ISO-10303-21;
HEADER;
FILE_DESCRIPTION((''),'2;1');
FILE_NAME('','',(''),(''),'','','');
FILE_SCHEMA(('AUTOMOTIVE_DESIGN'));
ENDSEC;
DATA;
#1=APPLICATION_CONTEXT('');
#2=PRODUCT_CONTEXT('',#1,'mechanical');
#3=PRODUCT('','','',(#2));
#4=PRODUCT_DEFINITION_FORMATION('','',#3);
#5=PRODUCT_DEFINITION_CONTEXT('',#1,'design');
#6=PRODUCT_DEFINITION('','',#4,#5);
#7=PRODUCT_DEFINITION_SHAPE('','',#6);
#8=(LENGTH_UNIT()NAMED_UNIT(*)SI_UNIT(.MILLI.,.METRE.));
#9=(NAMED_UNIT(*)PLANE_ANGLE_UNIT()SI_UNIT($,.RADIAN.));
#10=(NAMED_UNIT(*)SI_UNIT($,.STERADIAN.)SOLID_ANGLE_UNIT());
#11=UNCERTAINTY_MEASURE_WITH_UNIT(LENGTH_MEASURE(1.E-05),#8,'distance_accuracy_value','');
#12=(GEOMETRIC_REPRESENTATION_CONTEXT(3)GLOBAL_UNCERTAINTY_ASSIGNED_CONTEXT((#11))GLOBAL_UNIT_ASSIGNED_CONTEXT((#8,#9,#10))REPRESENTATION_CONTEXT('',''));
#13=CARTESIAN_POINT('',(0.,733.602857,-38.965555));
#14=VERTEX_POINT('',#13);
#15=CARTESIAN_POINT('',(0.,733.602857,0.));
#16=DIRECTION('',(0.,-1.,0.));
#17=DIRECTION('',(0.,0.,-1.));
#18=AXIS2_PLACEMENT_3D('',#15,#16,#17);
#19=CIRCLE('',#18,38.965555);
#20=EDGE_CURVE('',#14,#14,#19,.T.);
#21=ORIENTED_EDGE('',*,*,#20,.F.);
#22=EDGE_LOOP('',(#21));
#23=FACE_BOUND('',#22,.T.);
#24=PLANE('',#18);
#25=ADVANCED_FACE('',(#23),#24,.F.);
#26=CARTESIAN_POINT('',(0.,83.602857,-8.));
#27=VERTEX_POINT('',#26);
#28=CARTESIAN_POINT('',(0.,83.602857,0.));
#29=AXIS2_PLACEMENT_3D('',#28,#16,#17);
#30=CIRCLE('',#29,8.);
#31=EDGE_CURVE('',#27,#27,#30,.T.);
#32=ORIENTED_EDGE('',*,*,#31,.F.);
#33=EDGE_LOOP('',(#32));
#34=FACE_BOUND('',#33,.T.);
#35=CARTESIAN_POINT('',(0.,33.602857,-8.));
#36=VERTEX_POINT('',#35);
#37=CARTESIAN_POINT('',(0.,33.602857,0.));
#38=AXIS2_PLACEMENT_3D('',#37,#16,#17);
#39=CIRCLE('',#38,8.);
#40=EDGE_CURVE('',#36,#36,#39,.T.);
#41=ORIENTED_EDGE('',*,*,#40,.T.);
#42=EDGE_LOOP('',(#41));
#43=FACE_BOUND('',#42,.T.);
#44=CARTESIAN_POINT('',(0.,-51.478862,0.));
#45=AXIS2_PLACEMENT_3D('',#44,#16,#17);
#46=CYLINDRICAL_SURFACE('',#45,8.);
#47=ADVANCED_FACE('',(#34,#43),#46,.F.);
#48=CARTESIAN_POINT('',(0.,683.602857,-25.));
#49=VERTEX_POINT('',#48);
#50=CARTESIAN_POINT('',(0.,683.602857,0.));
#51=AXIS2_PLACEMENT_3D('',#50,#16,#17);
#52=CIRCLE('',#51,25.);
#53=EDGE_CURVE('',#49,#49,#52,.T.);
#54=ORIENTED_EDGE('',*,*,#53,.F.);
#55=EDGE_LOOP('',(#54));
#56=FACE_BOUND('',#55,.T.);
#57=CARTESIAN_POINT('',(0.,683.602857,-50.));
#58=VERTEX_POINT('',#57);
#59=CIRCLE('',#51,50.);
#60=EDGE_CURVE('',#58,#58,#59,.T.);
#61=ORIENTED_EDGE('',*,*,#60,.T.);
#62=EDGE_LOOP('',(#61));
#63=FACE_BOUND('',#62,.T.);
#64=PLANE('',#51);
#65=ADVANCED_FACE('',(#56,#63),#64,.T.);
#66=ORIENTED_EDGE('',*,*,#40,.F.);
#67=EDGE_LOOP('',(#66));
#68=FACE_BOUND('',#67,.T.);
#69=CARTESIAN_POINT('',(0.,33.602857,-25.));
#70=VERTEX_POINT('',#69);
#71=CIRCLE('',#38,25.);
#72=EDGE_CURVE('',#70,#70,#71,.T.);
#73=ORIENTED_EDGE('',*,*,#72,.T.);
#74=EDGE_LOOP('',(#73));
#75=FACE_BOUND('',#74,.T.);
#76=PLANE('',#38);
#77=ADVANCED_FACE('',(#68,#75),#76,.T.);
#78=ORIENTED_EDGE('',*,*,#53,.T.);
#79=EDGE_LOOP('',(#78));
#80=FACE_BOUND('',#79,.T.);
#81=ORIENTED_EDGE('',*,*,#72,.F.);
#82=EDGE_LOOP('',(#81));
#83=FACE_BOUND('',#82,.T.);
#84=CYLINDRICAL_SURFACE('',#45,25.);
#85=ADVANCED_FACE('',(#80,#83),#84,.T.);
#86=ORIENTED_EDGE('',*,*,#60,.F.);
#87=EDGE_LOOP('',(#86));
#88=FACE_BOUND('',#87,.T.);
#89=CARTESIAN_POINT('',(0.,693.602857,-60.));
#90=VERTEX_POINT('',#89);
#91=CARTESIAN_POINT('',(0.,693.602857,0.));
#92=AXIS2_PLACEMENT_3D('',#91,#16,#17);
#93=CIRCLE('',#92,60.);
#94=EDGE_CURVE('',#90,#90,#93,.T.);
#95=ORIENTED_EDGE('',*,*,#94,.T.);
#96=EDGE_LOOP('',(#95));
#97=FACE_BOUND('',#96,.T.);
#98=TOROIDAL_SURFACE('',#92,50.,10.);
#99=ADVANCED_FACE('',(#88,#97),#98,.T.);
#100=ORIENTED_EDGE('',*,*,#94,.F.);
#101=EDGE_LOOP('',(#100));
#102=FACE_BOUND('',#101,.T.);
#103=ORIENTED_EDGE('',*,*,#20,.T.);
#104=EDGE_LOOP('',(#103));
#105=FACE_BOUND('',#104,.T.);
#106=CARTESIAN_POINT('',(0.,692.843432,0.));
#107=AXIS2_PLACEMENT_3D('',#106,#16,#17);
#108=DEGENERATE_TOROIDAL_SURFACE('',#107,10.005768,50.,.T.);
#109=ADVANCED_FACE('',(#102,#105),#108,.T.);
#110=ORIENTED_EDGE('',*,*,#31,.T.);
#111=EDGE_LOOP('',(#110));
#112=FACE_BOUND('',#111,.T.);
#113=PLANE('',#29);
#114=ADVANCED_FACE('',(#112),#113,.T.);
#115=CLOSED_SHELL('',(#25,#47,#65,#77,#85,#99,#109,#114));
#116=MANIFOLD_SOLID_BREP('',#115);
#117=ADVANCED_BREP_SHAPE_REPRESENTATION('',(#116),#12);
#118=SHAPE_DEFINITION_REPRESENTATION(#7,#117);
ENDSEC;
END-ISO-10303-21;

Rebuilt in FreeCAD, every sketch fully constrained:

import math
import FreeCAD as App
import Part
import Sketcher
from FreeCAD import Vector

doc = App.newDocument("Part")
body = doc.addObject("PartDesign::Body", "Body")

sketch1 = doc.addObject("Sketcher::SketchObject", "Sketch")
body.addObject(sketch1)
sketch1.AttachmentSupport = (doc.XY_Plane, [""])
sketch1.MapMode = "FlatFace"
sketch1.addGeometry(Part.LineSegment(Vector(8, 84, 0), Vector(8, 34, 0)), False)
sketch1.addGeometry(Part.LineSegment(Vector(8, 34, 0), Vector(25, 34, 0)), False)
sketch1.addGeometry(Part.LineSegment(Vector(25, 34, 0), Vector(25, 684, 0)), False)
sketch1.addGeometry(Part.LineSegment(Vector(25, 684, 0), Vector(50, 684, 0)), False)
sketch1.addGeometry(Part.ArcOfCircle(Part.Circle(Vector(50, 694, 0), Vector(0, 0, 1), 10), math.radians(-90), math.radians(0)), False)
sketch1.addGeometry(Part.ArcOfCircle(Part.Circle(Vector(10, 693, 0), Vector(0, 0, 1), 50), math.radians(1), math.radians(55)), False)
sketch1.addGeometry(Part.LineSegment(Vector(39, 734, 0), Vector(0, 734, 0)), False)
sketch1.addGeometry(Part.LineSegment(Vector(0, 734, 0), Vector(0, 84, 0)), False)
sketch1.addGeometry(Part.LineSegment(Vector(0, 84, 0), Vector(8, 84, 0)), False)
sketch1.addConstraint(Sketcher.Constraint("Coincident", 0, 2, 1, 1))
sketch1.addConstraint(Sketcher.Constraint("Coincident", 1, 2, 2, 1))
sketch1.addConstraint(Sketcher.Constraint("Coincident", 2, 2, 3, 1))
sketch1.addConstraint(Sketcher.Constraint("Tangent", 3, 2, 4, 1))
sketch1.addConstraint(Sketcher.Constraint("Coincident", 4, 2, 5, 1))
sketch1.addConstraint(Sketcher.Constraint("Coincident", 5, 2, 6, 1))
sketch1.addConstraint(Sketcher.Constraint("Coincident", 6, 2, 7, 1))
sketch1.addConstraint(Sketcher.Constraint("Coincident", 7, 2, 8, 1))
sketch1.addConstraint(Sketcher.Constraint("Coincident", 8, 2, 0, 1))
sketch1.addConstraint(Sketcher.Constraint("Vertical", 0))
sketch1.addConstraint(Sketcher.Constraint("Horizontal", 1))
sketch1.addConstraint(Sketcher.Constraint("Vertical", 2))
sketch1.addConstraint(Sketcher.Constraint("Horizontal", 3))
sketch1.addConstraint(Sketcher.Constraint("Horizontal", 6))
sketch1.addConstraint(Sketcher.Constraint("Vertical", 7))
sketch1.addConstraint(Sketcher.Constraint("Horizontal", 8))
sketch1.addConstraint(Sketcher.Constraint("PointOnObject", 6, 2, -2))
sketch1.addConstraint(Sketcher.Constraint("Equal", 2, 7))
sketch1.addConstraint(Sketcher.Constraint("Radius", 4, 10.0))
sketch1.addConstraint(Sketcher.Constraint("Radius", 5, 50.0))
sketch1.addConstraint(Sketcher.Constraint("DistanceX", 1, 1, 1, 2, 17.0))
sketch1.addConstraint(Sketcher.Constraint("DistanceX", 3, 1, 3, 2, 25.0))
sketch1.addConstraint(Sketcher.Constraint("DistanceX", 8, 1, 8, 2, 8.0))
sketch1.addConstraint(Sketcher.Constraint("DistanceY", 0, 2, 0, 1, 50.0))
sketch1.addConstraint(Sketcher.Constraint("DistanceY", 2, 1, 2, 2, 650.0))
sketch1.addConstraint(Sketcher.Constraint("DistanceY", 3, 2, 4, 2, 10.0))
sketch1.addConstraint(Sketcher.Constraint("DistanceX", 6, 2, 6, 1, 38.965555))
sketch1.addConstraint(Sketcher.Constraint("DistanceY", -1, 1, 5, 3, 692.843432))
revolution = doc.addObject("PartDesign::Revolution", "Revolution")
body.addObject(revolution)
revolution.Profile = sketch1
revolution.ReferenceAxis = (sketch1, ["V_Axis"])
revolution.Angle = 360

doc.recompute()
